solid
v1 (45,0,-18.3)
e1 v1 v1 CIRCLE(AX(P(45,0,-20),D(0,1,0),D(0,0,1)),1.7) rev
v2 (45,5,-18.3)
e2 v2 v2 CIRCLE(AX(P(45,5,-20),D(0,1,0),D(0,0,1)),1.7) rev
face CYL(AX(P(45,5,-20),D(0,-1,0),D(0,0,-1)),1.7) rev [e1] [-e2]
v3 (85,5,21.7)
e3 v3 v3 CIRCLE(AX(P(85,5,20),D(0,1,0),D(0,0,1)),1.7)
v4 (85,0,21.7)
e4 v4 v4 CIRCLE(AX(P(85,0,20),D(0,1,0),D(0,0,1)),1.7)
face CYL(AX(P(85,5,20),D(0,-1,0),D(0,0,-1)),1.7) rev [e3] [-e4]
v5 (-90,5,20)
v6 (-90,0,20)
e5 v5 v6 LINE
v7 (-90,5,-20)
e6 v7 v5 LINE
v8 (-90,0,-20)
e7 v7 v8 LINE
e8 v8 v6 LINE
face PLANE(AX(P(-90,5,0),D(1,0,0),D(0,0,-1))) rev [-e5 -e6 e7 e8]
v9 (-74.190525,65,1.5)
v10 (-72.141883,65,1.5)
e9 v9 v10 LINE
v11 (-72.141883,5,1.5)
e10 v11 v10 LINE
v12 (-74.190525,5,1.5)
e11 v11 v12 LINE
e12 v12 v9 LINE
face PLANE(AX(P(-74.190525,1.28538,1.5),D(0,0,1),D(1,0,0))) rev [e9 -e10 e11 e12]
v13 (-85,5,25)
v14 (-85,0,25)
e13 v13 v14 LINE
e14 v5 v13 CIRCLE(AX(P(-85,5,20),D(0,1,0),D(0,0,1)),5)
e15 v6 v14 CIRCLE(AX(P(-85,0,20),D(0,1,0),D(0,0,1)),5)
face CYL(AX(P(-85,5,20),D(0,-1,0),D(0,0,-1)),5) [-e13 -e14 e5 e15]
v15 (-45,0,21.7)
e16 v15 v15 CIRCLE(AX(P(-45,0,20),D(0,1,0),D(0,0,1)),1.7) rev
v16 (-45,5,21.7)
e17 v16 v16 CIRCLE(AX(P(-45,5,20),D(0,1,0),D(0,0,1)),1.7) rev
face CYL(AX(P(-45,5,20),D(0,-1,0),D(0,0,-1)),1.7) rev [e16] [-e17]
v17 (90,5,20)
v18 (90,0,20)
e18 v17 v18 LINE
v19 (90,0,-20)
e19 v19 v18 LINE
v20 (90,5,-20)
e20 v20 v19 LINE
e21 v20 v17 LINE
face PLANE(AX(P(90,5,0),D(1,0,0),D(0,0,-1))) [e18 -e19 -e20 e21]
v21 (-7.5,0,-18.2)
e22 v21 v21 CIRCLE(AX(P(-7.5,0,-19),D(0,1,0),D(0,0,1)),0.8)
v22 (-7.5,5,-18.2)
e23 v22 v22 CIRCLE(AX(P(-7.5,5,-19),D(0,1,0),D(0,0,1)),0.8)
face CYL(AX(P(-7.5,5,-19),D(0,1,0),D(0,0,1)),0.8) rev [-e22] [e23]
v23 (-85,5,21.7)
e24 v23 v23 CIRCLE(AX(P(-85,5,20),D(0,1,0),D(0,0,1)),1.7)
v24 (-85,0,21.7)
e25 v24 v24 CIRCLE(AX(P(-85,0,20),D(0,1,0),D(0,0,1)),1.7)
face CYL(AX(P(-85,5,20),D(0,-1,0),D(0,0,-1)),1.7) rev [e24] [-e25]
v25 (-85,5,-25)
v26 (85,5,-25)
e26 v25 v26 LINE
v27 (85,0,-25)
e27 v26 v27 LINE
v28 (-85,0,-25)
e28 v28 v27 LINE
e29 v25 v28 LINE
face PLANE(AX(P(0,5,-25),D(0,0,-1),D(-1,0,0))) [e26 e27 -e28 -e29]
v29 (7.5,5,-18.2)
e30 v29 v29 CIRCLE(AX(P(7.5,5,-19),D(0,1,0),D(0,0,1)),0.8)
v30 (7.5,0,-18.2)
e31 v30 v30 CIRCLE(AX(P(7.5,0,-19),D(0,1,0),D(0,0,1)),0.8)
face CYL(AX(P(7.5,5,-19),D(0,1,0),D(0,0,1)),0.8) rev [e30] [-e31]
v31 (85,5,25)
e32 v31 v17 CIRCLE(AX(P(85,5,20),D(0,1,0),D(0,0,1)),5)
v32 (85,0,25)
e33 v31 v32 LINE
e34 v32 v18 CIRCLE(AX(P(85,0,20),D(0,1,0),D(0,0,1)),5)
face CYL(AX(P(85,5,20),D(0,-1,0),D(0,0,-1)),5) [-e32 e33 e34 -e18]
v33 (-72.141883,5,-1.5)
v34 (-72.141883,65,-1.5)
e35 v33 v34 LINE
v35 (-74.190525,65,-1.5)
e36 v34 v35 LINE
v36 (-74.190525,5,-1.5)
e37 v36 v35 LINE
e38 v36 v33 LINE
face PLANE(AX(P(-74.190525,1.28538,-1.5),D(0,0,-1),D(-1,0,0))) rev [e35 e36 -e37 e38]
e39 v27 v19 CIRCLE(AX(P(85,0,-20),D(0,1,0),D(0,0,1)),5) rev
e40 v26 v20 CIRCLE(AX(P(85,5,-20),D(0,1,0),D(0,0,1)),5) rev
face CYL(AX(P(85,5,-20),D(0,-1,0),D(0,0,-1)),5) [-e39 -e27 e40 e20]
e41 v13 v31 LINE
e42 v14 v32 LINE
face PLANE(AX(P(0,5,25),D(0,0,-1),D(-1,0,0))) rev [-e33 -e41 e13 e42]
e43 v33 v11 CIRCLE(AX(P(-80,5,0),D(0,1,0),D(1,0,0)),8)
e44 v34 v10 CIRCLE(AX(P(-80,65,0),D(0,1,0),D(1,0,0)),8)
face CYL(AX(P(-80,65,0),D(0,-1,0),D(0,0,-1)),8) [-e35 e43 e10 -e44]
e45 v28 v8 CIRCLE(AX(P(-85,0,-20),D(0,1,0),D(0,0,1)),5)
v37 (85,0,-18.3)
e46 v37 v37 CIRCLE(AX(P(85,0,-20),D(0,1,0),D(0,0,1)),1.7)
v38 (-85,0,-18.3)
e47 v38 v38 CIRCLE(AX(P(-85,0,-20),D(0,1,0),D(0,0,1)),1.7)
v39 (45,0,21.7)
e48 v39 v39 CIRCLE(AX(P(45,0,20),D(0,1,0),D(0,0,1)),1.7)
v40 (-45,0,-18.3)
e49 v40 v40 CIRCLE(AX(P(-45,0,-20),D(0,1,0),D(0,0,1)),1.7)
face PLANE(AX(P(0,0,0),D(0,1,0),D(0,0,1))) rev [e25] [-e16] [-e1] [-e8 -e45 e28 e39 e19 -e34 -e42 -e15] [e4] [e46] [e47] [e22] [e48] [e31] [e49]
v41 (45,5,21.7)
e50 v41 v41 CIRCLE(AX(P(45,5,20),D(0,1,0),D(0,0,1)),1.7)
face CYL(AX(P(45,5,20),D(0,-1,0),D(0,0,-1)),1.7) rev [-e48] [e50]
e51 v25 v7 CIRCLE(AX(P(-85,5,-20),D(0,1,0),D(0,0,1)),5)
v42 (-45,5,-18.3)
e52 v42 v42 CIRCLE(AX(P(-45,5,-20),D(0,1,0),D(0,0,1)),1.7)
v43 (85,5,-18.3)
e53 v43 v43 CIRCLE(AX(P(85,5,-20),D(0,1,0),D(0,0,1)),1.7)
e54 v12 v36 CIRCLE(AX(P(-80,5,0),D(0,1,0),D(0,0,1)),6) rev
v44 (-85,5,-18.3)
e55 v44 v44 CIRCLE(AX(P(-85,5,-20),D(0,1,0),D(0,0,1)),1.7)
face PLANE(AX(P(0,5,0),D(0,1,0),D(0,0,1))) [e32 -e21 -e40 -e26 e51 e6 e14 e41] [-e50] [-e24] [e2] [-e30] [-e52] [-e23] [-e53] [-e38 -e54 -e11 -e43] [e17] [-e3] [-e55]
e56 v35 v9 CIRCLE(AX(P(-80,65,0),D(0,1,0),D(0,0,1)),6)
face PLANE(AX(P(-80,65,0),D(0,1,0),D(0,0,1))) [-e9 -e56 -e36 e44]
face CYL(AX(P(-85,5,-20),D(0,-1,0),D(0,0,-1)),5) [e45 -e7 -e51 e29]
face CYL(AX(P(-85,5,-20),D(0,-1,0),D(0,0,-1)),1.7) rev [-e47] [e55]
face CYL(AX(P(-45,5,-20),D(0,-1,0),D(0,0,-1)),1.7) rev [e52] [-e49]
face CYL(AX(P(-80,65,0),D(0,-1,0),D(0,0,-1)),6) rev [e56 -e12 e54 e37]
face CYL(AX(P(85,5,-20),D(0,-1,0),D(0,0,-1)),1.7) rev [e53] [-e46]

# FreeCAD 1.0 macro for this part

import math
import FreeCAD as App
import Part
import Sketcher

V = App.Vector

doc = App.newDocument("Part")
body = doc.addObject("PartDesign::Body", "Body")

# Sketch on XZ plane
sketch1 = body.newObject("Sketcher::SketchObject", "Sketch")
sketch1.AttachmentSupport = (doc.getObject("XZ_Plane"), [""])
sketch1.MapMode = "FlatFace"
sketch1.addGeometry(Part.ArcOfCircle(Part.Circle(V(85, 20, 0), V(0, 0, 1), 5), math.radians(0), math.radians(90)), False)
sketch1.addGeometry(Part.LineSegment(V(90, 20, 0), V(90, -20, 0)), False)
sketch1.addGeometry(Part.ArcOfCircle(Part.Circle(V(85, -20, 0), V(0, 0, 1), 5), math.radians(-90), math.radians(0)), False)
sketch1.addGeometry(Part.LineSegment(V(85, -25, 0), V(-85, -25, 0)), False)
sketch1.addGeometry(Part.ArcOfCircle(Part.Circle(V(-85, -20, 0), V(0, 0, 1), 5), math.radians(180), math.radians(270)), False)
sketch1.addGeometry(Part.LineSegment(V(-90, -20, 0), V(-90, 20, 0)), False)
sketch1.addGeometry(Part.ArcOfCircle(Part.Circle(V(-85, 20, 0), V(0, 0, 1), 5), math.radians(90), math.radians(180)), False)
sketch1.addGeometry(Part.LineSegment(V(-85, 25, 0), V(85, 25, 0)), False)
sketch1.addGeometry(Part.Circle(V(-45, 20, 0), V(0, 0, 1), 1.7), False)
sketch1.addGeometry(Part.Circle(V(45, 20, 0), V(0, 0, 1), 1.7), False)
sketch1.addGeometry(Part.Circle(V(-45, -20, 0), V(0, 0, 1), 1.7), False)
sketch1.addGeometry(Part.Circle(V(45, -20, 0), V(0, 0, 1), 1.7), False)
sketch1.addGeometry(Part.Circle(V(-85, -20, 0), V(0, 0, 1), 1.7), False)
sketch1.addGeometry(Part.Circle(V(-85, 20, 0), V(0, 0, 1), 1.7), False)
sketch1.addGeometry(Part.Circle(V(85, -20, 0), V(0, 0, 1), 1.7), False)
sketch1.addGeometry(Part.Circle(V(85, 20, 0), V(0, 0, 1), 1.7), False)
sketch1.addConstraint(Sketcher.Constraint("Tangent", 0, 1, 1, 1))
sketch1.addConstraint(Sketcher.Constraint("Tangent", 1, 2, 2, 2))
sketch1.addConstraint(Sketcher.Constraint("Tangent", 2, 1, 3, 1))
sketch1.addConstraint(Sketcher.Constraint("Tangent", 3, 2, 4, 2))
sketch1.addConstraint(Sketcher.Constraint("Tangent", 4, 1, 5, 1))
sketch1.addConstraint(Sketcher.Constraint("Tangent", 5, 2, 6, 2))
sketch1.addConstraint(Sketcher.Constraint("Tangent", 6, 1, 7, 1))
sketch1.addConstraint(Sketcher.Constraint("Tangent", 7, 2, 0, 2))
sketch1.addConstraint(Sketcher.Constraint("Vertical", 1))
sketch1.addConstraint(Sketcher.Constraint("Horizontal", 3))
sketch1.addConstraint(Sketcher.Constraint("Vertical", 5))
sketch1.addConstraint(Sketcher.Constraint("Horizontal", 7))
sketch1.addConstraint(Sketcher.Constraint("Coincident", 12, 3, 4, 3))
sketch1.addConstraint(Sketcher.Constraint("Coincident", 13, 3, 6, 3))
sketch1.addConstraint(Sketcher.Constraint("Coincident", 14, 3, 2, 3))
sketch1.addConstraint(Sketcher.Constraint("Coincident", 15, 3, 0, 3))
sketch1.addConstraint(Sketcher.Constraint("Equal", 0, 2))
sketch1.addConstraint(Sketcher.Constraint("Equal", 2, 4))
sketch1.addConstraint(Sketcher.Constraint("Equal", 4, 6))
sketch1.addConstraint(Sketcher.Constraint("Equal", 8, 9))
sketch1.addConstraint(Sketcher.Constraint("Equal", 9, 10))
sketch1.addConstraint(Sketcher.Constraint("Equal", 10, 11))
sketch1.addConstraint(Sketcher.Constraint("Equal", 11, 12))
sketch1.addConstraint(Sketcher.Constraint("Equal", 12, 13))
sketch1.addConstraint(Sketcher.Constraint("Equal", 13, 14))
sketch1.addConstraint(Sketcher.Constraint("Equal", 14, 15))
sketch1.addConstraint(Sketcher.Constraint("Symmetric", 0, 3, 4, 3, -1, 1))
sketch1.addConstraint(Sketcher.Constraint("Symmetric", 9, 3, 10, 3, -1, 1))
sketch1.addConstraint(Sketcher.Constraint("Symmetric", 8, 3, 11, 3, -1, 1))
sketch1.addConstraint(Sketcher.Constraint("Symmetric", 8, 3, 9, 3, -2))
sketch1.addConstraint(Sketcher.Constraint("Horizontal", 6, 3, 8, 3))
sketch1.addConstraint(Sketcher.Constraint("Radius", 0, 5.0))
sketch1.addConstraint(Sketcher.Constraint("Diameter", 8, 3.4))
sketch1.addConstraint(Sketcher.Constraint("DistanceX", 3, 2, 3, 1, 170.0))
sketch1.addConstraint(Sketcher.Constraint("DistanceY", 1, 2, 1, 1, 40.0))
sketch1.addConstraint(Sketcher.Constraint("DistanceX", 8, 3, -1, 1, 45.0))
pad1 = body.newObject("PartDesign::Pad", "Pad")
pad1.Profile = sketch1
pad1.Length = 5
pad1.Reversed = True

# Sketch on XZ plane
sketch2 = body.newObject("Sketcher::SketchObject", "Sketch001")
sketch2.AttachmentSupport = (doc.getObject("XZ_Plane"), [""])
sketch2.MapMode = "FlatFace"
sketch2.AttachmentOffset = App.Placement(V(0, 0, -5), App.Rotation())
sketch2.addGeometry(Part.Circle(V(-7.5, -19, 0), V(0, 0, 1), 0.8), False)
sketch2.addGeometry(Part.Circle(V(7.5, -19, 0), V(0, 0, 1), 0.8), False)
sketch2.addConstraint(Sketcher.Constraint("Equal", 0, 1))
sketch2.addConstraint(Sketcher.Constraint("Symmetric", 0, 3, 1, 3, -2))
sketch2.addConstraint(Sketcher.Constraint("Diameter", 0, 1.6))
sketch2.addConstraint(Sketcher.Constraint("DistanceY", 0, 3, -1, 1, 19.0))
sketch2.addConstraint(Sketcher.Constraint("DistanceX", 0, 3, 1, 3, 15.0))
doc.recompute()
hole = body.newObject("PartDesign::Hole", "Hole")
hole.Profile = sketch2
hole.ThreadType = "None"
hole.Diameter = 1.6
hole.DepthType = "ThroughAll"
hole.Reversed = True

# Sketch on XZ plane
sketch3 = body.newObject("Sketcher::SketchObject", "Sketch002")
sketch3.AttachmentSupport = (doc.getObject("XZ_Plane"), [""])
sketch3.MapMode = "FlatFace"
sketch3.AttachmentOffset = App.Placement(V(0, 0, -5), App.Rotation())
sketch3.addGeometry(Part.Circle(V(-80, 0, 0), V(0, 0, 1), 8), False)
sketch3.addGeometry(Part.Circle(V(-80, 0, 0), V(0, 0, 1), 6), False)
sketch3.addConstraint(Sketcher.Constraint("Coincident", 1, 3, 0, 3))
sketch3.addConstraint(Sketcher.Constraint("PointOnObject", 0, 3, -1))
sketch3.addConstraint(Sketcher.Constraint("Diameter", 0, 16.0))
sketch3.addConstraint(Sketcher.Constraint("Diameter", 1, 12.0))
sketch3.addConstraint(Sketcher.Constraint("DistanceX", 0, 3, -1, 1, 80.0))
pad2 = body.newObject("PartDesign::Pad", "Pad001")
pad2.Profile = sketch3
pad2.Length = 60
pad2.Reversed = True

# Sketch on XZ plane
sketch4 = body.newObject("Sketcher::SketchObject", "Sketch003")
sketch4.AttachmentSupport = (doc.getObject("XZ_Plane"), [""])
sketch4.MapMode = "FlatFace"
sketch4.AttachmentOffset = App.Placement(V(0, 0, -5), App.Rotation())
sketch4.addGeometry(Part.LineSegment(V(-72.1, -1.5, 0), V(-74.2, -1.5, 0)), False)
sketch4.addGeometry(Part.ArcOfCircle(Part.Circle(V(-80, 0, 0), V(0, 0, 1), 6), math.radians(-14), math.radians(14)), False)
sketch4.addGeometry(Part.LineSegment(V(-74.2, 1.5, 0), V(-72.1, 1.5, 0)), False)
sketch4.addGeometry(Part.ArcOfCircle(Part.Circle(V(-80, 0, 0), V(0, 0, 1), 8), math.radians(-11), math.radians(11)), False)
sketch4.addConstraint(Sketcher.Constraint("Coincident", 0, 2, 1, 1))
sketch4.addConstraint(Sketcher.Constraint("Coincident", 1, 2, 2, 1))
sketch4.addConstraint(Sketcher.Constraint("Coincident", 2, 2, 3, 2))
sketch4.addConstraint(Sketcher.Constraint("Coincident", 3, 1, 0, 1))
sketch4.addConstraint(Sketcher.Constraint("Horizontal", 0))
sketch4.addConstraint(Sketcher.Constraint("Horizontal", 2))
sketch4.addConstraint(Sketcher.Constraint("Coincident", 3, 3, 1, 3))
sketch4.addConstraint(Sketcher.Constraint("Symmetric", 0, 2, 1, 2, -1))
sketch4.addConstraint(Sketcher.Constraint("Radius", 1, 6.0))
sketch4.addConstraint(Sketcher.Constraint("Radius", 3, 8.0))
sketch4.addConstraint(Sketcher.Constraint("DistanceX", 1, 3, -1, 1, 80.0))
sketch4.addConstraint(Sketcher.Constraint("DistanceY", 0, 2, 1, 2, 3.0))
pocket1 = body.newObject("PartDesign::Pocket", "Pocket")
pocket1.Profile = sketch4
pocket1.Length = 60

doc.recompute()
